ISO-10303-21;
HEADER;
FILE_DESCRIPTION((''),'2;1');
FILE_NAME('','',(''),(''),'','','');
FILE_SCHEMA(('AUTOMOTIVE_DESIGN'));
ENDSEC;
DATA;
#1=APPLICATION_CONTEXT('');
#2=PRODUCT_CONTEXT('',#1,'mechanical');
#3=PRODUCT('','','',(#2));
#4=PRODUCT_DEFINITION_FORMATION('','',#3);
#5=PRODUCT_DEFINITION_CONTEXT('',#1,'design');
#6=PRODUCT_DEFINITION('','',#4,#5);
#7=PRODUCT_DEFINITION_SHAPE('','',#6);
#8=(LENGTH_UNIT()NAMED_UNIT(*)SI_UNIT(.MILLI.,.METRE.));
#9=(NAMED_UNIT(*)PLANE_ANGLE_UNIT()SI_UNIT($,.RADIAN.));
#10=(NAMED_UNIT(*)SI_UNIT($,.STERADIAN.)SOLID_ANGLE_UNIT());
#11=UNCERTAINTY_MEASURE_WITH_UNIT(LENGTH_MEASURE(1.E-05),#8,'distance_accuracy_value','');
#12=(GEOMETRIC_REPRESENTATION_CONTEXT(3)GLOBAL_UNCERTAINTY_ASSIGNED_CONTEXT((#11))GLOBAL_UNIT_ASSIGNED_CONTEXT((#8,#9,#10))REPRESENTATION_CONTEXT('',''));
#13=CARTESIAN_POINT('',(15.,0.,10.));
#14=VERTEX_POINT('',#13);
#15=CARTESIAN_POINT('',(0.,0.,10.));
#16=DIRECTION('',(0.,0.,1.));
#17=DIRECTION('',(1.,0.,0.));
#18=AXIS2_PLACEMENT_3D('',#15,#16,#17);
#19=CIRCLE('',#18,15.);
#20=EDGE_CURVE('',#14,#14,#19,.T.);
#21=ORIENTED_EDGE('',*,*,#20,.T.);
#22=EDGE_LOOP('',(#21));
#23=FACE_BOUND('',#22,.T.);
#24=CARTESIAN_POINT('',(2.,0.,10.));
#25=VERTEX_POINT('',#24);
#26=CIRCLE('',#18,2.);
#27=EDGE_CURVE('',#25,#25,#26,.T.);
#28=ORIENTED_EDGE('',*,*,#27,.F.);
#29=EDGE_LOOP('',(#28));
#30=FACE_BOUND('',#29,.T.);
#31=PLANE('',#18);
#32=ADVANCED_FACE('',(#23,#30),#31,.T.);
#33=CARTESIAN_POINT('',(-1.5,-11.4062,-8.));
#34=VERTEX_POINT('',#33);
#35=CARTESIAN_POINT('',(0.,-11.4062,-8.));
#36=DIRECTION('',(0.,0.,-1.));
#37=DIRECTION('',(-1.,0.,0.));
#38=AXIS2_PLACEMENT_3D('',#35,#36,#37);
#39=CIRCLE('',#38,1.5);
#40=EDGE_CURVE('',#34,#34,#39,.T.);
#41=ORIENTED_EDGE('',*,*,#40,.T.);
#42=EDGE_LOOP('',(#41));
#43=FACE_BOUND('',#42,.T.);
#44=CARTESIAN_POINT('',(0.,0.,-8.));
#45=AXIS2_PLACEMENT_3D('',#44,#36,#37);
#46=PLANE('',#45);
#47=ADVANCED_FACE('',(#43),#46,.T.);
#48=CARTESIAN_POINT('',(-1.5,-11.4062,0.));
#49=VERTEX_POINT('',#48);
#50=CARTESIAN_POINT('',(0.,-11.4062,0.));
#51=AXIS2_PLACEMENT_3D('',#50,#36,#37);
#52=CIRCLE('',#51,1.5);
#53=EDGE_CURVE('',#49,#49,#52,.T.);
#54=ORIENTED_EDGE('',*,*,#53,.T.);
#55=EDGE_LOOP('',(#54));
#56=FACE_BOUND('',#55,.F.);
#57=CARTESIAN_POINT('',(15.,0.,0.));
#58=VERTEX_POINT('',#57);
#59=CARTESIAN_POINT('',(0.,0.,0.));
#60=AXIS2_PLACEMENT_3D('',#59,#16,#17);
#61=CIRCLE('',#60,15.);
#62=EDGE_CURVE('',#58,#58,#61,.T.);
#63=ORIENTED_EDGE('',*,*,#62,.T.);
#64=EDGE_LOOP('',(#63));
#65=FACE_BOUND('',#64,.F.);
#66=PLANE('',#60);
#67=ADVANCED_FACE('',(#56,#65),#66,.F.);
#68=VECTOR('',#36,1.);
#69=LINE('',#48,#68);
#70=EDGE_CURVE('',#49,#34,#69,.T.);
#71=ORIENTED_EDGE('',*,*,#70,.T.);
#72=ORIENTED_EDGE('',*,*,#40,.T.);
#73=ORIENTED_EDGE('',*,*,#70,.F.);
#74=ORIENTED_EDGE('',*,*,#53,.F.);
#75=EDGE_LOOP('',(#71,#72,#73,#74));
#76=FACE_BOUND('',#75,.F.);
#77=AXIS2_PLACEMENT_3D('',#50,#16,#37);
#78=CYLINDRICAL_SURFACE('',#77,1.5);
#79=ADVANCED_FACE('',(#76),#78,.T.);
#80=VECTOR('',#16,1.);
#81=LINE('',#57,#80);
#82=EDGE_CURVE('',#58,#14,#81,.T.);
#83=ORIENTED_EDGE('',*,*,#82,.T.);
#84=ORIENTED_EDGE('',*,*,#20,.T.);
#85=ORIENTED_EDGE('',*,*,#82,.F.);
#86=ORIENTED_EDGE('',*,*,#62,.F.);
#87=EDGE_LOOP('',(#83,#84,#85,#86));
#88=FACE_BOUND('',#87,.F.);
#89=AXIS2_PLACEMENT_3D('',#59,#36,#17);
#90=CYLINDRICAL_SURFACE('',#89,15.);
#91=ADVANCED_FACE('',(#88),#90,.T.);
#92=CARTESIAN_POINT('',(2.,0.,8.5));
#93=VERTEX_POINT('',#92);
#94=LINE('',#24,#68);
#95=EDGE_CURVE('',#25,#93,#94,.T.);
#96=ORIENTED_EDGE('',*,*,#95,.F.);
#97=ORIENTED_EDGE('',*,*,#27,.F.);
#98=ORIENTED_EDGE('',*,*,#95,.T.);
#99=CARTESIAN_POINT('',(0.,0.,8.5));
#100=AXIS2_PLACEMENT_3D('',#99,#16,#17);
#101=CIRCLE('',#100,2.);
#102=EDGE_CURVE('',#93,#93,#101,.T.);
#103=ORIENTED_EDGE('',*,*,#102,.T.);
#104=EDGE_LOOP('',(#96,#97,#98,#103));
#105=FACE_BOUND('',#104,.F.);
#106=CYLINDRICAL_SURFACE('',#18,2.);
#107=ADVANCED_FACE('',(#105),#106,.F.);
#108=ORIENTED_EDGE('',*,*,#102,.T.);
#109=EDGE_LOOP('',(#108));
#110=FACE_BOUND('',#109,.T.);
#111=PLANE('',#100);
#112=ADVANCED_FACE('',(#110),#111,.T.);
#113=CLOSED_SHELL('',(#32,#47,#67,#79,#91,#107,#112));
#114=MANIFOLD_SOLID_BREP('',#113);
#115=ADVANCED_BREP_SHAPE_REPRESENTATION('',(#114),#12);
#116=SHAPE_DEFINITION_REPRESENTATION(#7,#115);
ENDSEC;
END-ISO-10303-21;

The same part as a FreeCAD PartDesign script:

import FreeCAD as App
import Part
import Sketcher

doc = App.newDocument("Part")
body = doc.addObject("PartDesign::Body", "Body")

sketch1 = doc.addObject("Sketcher::SketchObject", "Sketch")
body.addObject(sketch1)
sketch1.AttachmentSupport = (doc.XY_Plane, [""])
sketch1.MapMode = "FlatFace"
sketch1.addGeometry(Part.Circle(App.Vector(0, 0, 0), App.Vector(0, 0, 1), 15), False)
sketch1.addConstraint(Sketcher.Constraint("Coincident", 0, 3, -1, 1))
sketch1.addConstraint(Sketcher.Constraint("Diameter", 0, 30.0))
pad1 = doc.addObject("PartDesign::Pad", "Pad")
body.addObject(pad1)
pad1.Profile = sketch1
pad1.Length = 10

sketch2 = doc.addObject("Sketcher::SketchObject", "Sketch001")
body.addObject(sketch2)
sketch2.AttachmentSupport = (doc.XY_Plane, [""])
sketch2.MapMode = "FlatFace"
sketch2.AttachmentOffset = App.Placement(App.Vector(0, 0, 10), App.Rotation())
sketch2.addGeometry(Part.Circle(App.Vector(0, 0, 0), App.Vector(0, 0, 1), 2), False)
sketch2.addConstraint(Sketcher.Constraint("Coincident", 0, 3, -1, 1))
sketch2.addConstraint(Sketcher.Constraint("Diameter", 0, 4.0))
pocket1 = doc.addObject("PartDesign::Pocket", "Pocket")
body.addObject(pocket1)
pocket1.Profile = sketch2
pocket1.Length = 1.5

sketch3 = doc.addObject("Sketcher::SketchObject", "Sketch002")
body.addObject(sketch3)
sketch3.AttachmentSupport = (doc.XY_Plane, [""])
sketch3.MapMode = "FlatFace"
sketch3.addGeometry(Part.Circle(App.Vector(0, -11.4, 0), App.Vector(0, 0, 1), 1.5), False)
sketch3.addConstraint(Sketcher.Constraint("PointOnObject", 0, 3, -2))
sketch3.addConstraint(Sketcher.Constraint("Diameter", 0, 3.0))
sketch3.addConstraint(Sketcher.Constraint("DistanceY", 0, 3, -1, 1, 11.4062))
pad2 = doc.addObject("PartDesign::Pad", "Pad001")
body.addObject(pad2)
pad2.Profile = sketch3
pad2.Length = 8
pad2.Reversed = True

doc.recompute()
